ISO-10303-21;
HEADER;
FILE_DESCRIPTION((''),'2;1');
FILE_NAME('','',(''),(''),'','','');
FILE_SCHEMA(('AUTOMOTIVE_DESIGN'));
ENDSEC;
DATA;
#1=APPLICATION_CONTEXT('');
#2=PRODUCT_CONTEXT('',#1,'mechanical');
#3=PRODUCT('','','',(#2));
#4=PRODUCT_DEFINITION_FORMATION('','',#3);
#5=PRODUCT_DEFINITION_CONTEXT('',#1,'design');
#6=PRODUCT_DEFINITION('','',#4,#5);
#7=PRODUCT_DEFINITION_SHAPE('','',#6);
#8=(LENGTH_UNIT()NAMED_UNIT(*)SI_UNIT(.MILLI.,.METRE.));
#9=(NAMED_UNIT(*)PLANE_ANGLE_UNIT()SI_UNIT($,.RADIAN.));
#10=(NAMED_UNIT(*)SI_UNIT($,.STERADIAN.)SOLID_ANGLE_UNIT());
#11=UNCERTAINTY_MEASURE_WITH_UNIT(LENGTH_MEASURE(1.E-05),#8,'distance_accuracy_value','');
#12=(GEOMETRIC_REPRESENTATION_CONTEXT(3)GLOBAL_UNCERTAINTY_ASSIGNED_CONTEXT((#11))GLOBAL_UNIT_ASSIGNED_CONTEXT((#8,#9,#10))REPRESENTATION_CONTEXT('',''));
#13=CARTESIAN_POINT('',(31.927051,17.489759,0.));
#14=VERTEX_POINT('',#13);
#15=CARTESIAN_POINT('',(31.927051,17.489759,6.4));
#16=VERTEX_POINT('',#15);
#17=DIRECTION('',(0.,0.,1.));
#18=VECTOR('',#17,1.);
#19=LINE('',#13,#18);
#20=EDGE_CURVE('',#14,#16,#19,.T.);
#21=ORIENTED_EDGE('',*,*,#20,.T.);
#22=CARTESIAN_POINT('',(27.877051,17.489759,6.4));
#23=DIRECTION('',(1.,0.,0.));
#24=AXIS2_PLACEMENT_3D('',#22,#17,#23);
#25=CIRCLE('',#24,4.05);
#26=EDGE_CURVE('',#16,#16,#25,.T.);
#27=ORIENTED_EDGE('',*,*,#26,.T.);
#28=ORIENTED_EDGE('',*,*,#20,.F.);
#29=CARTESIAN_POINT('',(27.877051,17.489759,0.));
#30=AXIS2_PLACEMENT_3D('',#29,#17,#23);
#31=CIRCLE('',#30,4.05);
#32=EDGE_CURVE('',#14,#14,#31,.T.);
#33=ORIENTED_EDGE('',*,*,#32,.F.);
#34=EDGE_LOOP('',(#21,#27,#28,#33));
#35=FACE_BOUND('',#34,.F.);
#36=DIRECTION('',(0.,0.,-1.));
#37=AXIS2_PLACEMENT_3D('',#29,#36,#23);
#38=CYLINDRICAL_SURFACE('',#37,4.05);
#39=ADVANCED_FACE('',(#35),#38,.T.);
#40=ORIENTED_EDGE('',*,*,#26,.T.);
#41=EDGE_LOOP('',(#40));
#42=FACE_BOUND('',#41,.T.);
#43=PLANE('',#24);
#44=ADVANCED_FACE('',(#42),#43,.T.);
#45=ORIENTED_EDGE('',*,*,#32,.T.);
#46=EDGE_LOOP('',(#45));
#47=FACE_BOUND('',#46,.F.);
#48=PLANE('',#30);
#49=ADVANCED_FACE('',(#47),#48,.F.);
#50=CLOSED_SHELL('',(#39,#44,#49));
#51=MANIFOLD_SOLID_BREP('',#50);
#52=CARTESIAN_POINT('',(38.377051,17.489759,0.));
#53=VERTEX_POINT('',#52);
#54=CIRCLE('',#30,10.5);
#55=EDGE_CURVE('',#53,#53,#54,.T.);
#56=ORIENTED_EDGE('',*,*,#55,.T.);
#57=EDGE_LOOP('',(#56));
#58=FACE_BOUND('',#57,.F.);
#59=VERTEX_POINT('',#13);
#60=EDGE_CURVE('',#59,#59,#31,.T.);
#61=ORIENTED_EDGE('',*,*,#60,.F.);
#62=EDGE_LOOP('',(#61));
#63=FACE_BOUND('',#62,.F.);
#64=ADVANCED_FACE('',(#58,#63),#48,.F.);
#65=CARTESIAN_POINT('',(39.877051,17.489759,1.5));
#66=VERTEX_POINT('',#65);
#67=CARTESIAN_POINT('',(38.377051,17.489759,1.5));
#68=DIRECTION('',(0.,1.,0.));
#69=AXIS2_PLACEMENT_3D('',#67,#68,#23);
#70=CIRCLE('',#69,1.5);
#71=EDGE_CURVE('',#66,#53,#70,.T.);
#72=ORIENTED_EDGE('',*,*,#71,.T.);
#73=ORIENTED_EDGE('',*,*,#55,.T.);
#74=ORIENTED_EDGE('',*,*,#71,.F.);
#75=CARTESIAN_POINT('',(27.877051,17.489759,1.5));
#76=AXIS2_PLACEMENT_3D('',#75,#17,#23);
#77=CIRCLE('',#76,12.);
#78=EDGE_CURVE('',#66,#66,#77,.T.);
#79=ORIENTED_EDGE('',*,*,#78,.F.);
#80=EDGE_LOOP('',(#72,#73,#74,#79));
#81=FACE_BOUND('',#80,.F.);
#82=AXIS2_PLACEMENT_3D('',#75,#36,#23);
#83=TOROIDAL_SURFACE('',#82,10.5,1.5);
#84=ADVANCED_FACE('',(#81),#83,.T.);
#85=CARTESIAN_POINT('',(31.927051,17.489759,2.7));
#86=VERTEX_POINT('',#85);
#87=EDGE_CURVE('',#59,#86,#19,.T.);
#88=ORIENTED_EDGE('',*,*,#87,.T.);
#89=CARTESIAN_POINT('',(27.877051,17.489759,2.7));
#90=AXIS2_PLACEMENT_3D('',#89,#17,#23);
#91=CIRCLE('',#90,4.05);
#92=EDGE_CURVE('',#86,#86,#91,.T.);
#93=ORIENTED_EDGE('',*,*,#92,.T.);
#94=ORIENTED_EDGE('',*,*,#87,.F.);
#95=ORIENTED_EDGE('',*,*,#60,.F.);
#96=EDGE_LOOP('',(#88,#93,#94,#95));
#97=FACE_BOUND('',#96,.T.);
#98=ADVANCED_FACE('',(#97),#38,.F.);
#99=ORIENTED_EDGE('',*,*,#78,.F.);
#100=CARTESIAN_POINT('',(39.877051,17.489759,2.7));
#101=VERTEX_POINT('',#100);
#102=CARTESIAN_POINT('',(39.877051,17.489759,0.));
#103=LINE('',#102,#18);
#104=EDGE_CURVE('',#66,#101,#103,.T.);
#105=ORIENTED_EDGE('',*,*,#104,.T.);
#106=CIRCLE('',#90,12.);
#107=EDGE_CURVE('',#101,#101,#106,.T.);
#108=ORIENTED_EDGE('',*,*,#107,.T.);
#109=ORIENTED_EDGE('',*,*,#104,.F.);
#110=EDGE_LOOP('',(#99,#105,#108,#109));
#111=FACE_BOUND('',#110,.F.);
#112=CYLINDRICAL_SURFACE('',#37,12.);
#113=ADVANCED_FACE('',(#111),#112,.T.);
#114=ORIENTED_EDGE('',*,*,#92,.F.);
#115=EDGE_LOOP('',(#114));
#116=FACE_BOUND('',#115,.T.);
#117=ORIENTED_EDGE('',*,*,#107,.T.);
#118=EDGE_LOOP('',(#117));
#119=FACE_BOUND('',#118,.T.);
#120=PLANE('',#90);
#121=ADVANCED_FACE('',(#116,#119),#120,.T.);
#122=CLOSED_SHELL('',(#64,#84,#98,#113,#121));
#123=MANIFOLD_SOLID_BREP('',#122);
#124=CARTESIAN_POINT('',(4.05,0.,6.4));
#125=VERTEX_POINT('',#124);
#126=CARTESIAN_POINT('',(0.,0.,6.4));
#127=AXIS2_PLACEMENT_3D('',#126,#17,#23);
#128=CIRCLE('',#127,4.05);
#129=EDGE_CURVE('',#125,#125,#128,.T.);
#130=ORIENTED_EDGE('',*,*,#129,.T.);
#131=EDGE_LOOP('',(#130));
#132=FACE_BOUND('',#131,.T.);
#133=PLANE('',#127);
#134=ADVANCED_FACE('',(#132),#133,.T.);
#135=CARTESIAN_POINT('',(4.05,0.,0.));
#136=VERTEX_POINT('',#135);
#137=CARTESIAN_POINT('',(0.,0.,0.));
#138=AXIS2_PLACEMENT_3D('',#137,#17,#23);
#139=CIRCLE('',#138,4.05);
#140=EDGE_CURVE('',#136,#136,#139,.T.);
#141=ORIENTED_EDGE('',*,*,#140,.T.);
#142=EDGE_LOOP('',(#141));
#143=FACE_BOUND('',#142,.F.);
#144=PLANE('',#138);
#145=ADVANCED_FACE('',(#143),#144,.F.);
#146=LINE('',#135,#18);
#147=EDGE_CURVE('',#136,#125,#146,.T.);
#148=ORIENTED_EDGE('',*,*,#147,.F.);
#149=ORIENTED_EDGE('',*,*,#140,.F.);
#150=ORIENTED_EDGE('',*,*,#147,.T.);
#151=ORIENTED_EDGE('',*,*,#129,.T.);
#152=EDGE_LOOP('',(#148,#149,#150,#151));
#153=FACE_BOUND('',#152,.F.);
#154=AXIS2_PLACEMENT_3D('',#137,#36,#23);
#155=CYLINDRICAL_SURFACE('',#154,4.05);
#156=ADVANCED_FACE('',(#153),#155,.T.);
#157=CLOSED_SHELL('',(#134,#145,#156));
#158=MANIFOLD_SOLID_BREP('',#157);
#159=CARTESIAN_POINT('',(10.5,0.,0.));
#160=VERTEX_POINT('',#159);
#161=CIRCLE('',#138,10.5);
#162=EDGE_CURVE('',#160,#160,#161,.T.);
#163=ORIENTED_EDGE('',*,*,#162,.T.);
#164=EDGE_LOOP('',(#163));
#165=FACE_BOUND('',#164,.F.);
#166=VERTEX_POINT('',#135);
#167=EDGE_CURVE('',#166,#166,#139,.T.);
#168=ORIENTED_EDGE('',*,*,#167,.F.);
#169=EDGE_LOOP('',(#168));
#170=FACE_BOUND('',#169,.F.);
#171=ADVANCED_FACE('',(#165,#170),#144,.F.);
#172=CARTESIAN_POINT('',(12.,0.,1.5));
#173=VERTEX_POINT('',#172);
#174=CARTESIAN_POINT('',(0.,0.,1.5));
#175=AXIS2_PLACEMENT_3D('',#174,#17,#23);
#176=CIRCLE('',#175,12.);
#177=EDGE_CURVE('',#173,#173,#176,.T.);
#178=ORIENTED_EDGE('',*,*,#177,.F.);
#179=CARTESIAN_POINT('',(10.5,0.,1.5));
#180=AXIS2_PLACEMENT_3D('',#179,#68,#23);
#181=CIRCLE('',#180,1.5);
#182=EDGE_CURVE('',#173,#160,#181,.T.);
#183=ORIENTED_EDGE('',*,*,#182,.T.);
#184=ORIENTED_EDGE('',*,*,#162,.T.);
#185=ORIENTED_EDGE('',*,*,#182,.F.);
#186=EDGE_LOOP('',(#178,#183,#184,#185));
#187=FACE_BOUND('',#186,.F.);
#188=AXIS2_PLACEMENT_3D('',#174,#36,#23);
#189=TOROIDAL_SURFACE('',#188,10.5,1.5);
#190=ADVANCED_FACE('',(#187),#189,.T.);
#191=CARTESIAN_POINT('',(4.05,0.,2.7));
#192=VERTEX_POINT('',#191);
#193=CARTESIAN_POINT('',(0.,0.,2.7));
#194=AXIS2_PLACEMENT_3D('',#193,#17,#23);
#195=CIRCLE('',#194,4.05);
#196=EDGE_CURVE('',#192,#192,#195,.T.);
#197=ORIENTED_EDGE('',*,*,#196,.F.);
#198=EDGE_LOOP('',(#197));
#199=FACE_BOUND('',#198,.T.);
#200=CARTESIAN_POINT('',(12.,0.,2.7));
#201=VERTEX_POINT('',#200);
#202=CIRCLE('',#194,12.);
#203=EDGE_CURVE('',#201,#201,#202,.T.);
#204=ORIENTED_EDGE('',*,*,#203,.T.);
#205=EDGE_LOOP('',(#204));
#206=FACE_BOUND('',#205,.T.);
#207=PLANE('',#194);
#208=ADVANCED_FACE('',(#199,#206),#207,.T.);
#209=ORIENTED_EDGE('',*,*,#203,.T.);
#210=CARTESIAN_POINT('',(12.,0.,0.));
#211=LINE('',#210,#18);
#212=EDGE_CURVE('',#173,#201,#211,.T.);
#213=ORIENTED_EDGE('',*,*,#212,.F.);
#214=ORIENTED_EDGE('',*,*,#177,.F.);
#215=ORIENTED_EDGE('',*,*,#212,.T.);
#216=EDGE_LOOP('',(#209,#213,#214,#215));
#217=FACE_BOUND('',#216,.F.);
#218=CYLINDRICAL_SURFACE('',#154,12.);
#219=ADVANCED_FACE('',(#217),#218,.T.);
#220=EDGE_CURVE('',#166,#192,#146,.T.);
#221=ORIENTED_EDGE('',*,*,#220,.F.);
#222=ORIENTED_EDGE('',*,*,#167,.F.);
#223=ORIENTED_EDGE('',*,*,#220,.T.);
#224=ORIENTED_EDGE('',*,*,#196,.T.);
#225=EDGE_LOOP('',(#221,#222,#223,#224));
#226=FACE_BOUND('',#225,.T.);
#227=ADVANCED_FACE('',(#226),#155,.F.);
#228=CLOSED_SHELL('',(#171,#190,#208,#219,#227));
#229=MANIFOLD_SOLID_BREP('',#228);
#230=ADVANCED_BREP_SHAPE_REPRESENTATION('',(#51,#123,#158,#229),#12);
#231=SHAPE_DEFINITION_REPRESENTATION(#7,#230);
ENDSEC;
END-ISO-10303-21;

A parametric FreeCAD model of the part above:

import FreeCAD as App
import Part
import Sketcher
from FreeCAD import Vector
Q = App.Units.Quantity


def edges_at(feature, points):
    """Names of the edges that pass closest to the given points."""
    edges = feature.Shape.Edges
    near = lambda p: min(range(len(edges)), key=lambda i: edges[i].distToShape(Part.Vertex(*p))[0])
    return sorted({f"Edge{near(p) + 1}" for p in points})

doc = App.newDocument("Part")
body = doc.addObject("PartDesign::Body", "Body")
body.AllowCompound = True

sketch1 = body.newObject("Sketcher::SketchObject", "Sketch")
sketch1.AttachmentSupport = (doc.getObject("XY_Plane"), [""])
sketch1.MapMode = "FlatFace"
sketch1.addGeometry(Part.Circle(Vector(0, 0, 0), Vector(0, 0, 1), 12), False)
sketch1.addGeometry(Part.Circle(Vector(0, 0, 0), Vector(0, 0, 1), 4.05), False)
sketch1.addGeometry(Part.Circle(Vector(27.877051, 17.489759, 0), Vector(0, 0, 1), 12), False)
sketch1.addGeometry(Part.Circle(Vector(27.877051, 17.489759, 0), Vector(0, 0, 1), 4.05), False)
sketch1.addConstraint(Sketcher.Constraint("Coincident", 0, 3, -1, 1))
sketch1.addConstraint(Sketcher.Constraint("Coincident", 1, 3, -1, 1))
sketch1.addConstraint(Sketcher.Constraint("Coincident", 3, 3, 2, 3))
sketch1.addConstraint(Sketcher.Constraint("Equal", 0, 2))
sketch1.addConstraint(Sketcher.Constraint("Equal", 1, 3))
sketch1.addConstraint(Sketcher.Constraint("Diameter", 0, Q("24 mm")))
sketch1.addConstraint(Sketcher.Constraint("Diameter", 1, Q("8.1 mm")))
sketch1.addConstraint(Sketcher.Constraint("DistanceX", -1, 1, 2, 3, Q("27.877051 mm")))
sketch1.addConstraint(Sketcher.Constraint("DistanceY", -1, 1, 2, 3, Q("17.489759 mm")))
pad1 = body.newObject("PartDesign::Pad", "Pad")
pad1.Profile = sketch1
pad1.Length = 2.7
doc.recompute()

fillet = body.newObject("PartDesign::Fillet", "Fillet")
fillet.Base = (pad1, edges_at(pad1, [(15.877, 17.49, 0), (-12, 0, 0)]))
fillet.Radius = 1.5
body2 = doc.addObject("PartDesign::Body", "Body001")
body2.AllowCompound = True

sketch2 = body2.newObject("Sketcher::SketchObject", "Sketch001")
sketch2.AttachmentSupport = (doc.getObject("XY_Plane001"), [""])
sketch2.MapMode = "FlatFace"
sketch2.addGeometry(Part.Circle(Vector(0, 0, 0), Vector(0, 0, 1), 4.05), False)
sketch2.addGeometry(Part.Circle(Vector(27.877051, 17.489759, 0), Vector(0, 0, 1), 4.05), False)
sketch2.addConstraint(Sketcher.Constraint("Coincident", 0, 3, -1, 1))
sketch2.addConstraint(Sketcher.Constraint("Equal", 0, 1))
sketch2.addConstraint(Sketcher.Constraint("Diameter", 0, Q("8.1 mm")))
sketch2.addConstraint(Sketcher.Constraint("DistanceX", -1, 1, 1, 3, Q("27.877051 mm")))
sketch2.addConstraint(Sketcher.Constraint("DistanceY", -1, 1, 1, 3, Q("17.489759 mm")))
pad2 = body2.newObject("PartDesign::Pad", "Pad001")
pad2.Profile = sketch2
pad2.Length = 6.4

doc.recompute()
